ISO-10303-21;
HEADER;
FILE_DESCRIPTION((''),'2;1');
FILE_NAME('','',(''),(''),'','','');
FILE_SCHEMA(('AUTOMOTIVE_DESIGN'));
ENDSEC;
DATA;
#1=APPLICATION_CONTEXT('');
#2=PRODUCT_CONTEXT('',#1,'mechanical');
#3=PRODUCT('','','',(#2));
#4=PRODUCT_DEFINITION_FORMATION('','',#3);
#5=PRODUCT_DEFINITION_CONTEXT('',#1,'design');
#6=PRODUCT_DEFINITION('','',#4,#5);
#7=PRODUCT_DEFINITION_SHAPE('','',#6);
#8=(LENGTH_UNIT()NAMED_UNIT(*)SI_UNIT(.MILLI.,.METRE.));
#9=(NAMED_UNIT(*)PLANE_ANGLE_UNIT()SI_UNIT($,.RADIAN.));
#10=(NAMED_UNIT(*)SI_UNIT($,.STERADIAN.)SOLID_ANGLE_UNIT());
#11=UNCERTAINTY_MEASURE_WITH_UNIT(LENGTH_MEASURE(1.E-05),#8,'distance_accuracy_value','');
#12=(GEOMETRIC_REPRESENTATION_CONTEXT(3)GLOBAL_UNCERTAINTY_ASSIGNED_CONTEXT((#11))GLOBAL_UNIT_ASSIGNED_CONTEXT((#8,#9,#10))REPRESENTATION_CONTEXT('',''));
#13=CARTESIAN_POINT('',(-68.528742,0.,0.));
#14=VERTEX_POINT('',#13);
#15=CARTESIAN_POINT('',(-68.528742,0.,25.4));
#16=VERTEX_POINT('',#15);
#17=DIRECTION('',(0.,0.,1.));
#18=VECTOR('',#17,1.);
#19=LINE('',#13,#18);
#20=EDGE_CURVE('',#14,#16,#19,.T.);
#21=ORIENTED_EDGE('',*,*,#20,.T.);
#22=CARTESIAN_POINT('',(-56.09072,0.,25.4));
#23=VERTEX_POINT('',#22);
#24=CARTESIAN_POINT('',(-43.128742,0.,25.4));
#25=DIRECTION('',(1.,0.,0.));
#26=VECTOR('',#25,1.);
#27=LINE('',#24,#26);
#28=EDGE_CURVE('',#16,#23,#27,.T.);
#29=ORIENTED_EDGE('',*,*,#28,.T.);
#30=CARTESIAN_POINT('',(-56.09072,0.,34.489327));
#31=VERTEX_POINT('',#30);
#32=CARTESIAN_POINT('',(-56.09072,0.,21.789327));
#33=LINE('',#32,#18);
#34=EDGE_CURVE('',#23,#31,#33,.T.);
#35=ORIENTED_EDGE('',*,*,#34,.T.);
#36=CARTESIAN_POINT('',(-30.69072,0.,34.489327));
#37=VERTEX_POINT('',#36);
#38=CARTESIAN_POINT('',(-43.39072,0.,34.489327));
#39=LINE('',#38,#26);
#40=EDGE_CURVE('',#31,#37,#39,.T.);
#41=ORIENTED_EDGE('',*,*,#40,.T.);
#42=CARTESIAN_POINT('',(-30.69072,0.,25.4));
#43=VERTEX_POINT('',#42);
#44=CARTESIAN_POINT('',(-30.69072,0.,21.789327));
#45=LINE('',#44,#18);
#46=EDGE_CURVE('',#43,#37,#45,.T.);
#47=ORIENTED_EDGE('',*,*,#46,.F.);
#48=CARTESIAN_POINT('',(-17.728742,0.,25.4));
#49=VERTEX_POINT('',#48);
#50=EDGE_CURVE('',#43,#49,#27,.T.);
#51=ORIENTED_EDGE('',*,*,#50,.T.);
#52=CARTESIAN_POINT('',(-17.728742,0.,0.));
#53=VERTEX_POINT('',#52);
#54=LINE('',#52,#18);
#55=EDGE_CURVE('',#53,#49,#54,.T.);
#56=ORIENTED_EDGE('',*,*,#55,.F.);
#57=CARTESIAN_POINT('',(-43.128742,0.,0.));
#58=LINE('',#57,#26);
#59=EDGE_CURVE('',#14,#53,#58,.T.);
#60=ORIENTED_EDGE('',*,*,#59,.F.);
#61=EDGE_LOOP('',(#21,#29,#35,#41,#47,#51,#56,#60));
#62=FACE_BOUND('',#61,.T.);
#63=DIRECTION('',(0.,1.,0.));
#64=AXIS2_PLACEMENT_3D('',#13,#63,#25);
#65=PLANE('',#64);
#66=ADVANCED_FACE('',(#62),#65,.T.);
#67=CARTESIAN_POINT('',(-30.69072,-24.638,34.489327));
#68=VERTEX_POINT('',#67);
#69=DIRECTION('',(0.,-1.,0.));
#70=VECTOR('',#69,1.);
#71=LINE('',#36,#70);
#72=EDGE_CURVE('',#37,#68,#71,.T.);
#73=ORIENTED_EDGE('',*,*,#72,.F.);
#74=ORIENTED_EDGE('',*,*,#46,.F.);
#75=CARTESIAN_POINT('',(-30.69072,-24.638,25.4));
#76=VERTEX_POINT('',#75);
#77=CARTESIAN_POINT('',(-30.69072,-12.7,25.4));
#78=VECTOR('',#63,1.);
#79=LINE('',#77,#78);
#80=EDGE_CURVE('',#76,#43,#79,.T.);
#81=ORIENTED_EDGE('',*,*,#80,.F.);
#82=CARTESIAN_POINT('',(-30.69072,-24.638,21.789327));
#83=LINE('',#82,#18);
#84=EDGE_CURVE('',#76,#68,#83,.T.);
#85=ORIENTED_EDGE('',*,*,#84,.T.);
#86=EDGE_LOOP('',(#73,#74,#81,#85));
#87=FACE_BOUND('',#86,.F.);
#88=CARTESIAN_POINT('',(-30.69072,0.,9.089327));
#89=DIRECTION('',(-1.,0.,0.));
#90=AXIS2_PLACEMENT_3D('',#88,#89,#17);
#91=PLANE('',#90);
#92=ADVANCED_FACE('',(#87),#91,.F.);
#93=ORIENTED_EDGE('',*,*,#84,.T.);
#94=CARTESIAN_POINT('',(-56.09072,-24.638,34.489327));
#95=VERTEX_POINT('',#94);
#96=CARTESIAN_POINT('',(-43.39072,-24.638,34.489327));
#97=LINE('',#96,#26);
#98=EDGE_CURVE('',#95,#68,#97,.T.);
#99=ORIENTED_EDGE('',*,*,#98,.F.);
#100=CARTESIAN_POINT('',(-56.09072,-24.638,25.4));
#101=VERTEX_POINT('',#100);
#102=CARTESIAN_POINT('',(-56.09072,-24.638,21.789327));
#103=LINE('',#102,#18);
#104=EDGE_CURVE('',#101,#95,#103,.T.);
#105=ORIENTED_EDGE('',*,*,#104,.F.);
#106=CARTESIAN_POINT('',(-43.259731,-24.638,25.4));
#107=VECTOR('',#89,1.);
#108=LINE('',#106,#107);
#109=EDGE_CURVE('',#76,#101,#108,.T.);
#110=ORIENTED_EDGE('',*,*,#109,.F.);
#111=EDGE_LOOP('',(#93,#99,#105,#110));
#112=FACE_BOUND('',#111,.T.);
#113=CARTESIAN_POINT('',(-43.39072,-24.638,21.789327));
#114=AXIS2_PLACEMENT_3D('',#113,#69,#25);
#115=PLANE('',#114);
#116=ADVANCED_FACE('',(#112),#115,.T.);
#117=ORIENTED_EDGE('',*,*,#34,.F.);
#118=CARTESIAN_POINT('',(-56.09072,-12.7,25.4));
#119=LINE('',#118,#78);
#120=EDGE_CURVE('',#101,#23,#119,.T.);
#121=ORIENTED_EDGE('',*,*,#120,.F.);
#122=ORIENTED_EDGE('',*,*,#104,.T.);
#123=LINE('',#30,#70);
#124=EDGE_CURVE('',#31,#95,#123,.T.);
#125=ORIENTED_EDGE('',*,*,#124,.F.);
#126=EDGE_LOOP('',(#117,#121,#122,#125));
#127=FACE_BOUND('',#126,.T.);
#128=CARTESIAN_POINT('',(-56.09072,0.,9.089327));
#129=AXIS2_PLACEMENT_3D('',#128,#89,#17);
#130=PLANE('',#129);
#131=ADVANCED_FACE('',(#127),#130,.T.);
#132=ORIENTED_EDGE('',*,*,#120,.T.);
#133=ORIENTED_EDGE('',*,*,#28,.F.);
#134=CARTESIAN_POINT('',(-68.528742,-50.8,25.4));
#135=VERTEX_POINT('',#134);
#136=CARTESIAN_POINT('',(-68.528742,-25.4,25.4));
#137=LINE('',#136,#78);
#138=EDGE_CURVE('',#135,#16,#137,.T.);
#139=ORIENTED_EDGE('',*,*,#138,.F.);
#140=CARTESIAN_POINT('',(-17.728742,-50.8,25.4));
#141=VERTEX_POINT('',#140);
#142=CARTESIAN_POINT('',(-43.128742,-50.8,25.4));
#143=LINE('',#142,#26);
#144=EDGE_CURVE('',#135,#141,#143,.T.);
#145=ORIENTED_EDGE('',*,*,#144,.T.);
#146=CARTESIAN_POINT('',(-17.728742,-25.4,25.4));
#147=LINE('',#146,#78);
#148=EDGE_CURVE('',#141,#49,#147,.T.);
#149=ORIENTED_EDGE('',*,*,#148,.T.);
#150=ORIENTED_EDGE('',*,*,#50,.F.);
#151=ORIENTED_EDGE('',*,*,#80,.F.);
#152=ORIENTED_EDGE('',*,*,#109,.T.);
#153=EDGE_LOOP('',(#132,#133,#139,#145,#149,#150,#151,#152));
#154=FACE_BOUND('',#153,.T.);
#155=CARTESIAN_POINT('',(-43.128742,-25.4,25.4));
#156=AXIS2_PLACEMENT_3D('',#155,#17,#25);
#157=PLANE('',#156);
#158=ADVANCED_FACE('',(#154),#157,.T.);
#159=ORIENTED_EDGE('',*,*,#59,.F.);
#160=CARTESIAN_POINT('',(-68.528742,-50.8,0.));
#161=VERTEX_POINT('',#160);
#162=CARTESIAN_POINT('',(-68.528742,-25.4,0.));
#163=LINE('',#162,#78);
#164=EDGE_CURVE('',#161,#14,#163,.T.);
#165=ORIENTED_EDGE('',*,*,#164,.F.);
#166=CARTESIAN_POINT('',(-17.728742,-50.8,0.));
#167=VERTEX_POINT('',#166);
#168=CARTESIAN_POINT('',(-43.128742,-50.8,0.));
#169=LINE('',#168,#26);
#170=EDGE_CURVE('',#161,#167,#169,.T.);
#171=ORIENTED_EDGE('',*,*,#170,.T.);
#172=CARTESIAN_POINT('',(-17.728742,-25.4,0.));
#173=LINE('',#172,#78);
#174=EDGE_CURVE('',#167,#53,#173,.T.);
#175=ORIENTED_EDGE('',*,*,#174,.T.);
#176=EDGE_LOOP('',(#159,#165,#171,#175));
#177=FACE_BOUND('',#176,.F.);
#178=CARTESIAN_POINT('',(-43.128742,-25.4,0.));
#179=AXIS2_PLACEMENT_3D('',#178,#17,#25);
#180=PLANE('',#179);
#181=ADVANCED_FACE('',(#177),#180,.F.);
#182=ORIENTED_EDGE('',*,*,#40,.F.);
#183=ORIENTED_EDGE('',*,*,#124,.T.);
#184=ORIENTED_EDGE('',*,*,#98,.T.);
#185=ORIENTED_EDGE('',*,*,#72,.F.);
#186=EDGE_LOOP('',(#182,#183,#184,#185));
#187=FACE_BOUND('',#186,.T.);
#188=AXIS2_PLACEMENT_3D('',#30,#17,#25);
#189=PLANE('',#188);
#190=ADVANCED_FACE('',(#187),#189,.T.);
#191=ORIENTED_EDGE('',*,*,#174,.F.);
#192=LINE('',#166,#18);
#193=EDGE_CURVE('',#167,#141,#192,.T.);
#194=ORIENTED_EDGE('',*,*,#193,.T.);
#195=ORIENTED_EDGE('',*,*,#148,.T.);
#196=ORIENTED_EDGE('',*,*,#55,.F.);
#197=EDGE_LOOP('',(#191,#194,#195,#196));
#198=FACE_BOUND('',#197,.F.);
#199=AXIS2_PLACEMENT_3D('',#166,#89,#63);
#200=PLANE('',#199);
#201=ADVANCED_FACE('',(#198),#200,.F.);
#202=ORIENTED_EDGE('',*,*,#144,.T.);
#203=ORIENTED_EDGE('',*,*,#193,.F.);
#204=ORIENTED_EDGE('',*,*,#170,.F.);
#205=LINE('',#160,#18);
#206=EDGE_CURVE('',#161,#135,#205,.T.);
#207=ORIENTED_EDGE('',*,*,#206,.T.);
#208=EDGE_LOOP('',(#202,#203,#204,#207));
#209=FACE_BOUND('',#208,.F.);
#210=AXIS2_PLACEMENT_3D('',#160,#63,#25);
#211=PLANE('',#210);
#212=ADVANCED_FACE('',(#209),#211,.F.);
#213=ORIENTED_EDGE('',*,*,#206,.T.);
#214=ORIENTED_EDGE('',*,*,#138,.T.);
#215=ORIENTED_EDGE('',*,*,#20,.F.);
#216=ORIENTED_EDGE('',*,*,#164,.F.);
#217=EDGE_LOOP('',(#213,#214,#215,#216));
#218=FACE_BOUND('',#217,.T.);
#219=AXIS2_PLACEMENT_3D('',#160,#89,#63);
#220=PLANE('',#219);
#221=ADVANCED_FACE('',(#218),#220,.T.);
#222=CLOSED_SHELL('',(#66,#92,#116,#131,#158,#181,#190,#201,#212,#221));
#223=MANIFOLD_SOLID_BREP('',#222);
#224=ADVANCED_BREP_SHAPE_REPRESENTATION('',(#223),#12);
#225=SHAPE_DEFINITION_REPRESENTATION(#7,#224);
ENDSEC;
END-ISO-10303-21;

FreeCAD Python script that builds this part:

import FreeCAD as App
import Part
import Sketcher
Q = App.Units.Quantity

doc = App.newDocument("Part")
body = doc.addObject("PartDesign::Body", "Body")

sketch1 = body.newObject("Sketcher::SketchObject", "Sketch")
sketch1.AttachmentSupport = (doc.getObject("XZ_Plane"), [""])
sketch1.MapMode = "FlatFace"
sketch1.addGeometry(Part.LineSegment(App.Vector(-56, 34, 0), App.Vector(-56, 9, 0)), False)
sketch1.addGeometry(Part.LineSegment(App.Vector(-56, 9, 0), App.Vector(-31, 9, 0)), False)
sketch1.addGeometry(Part.LineSegment(App.Vector(-31, 9, 0), App.Vector(-31, 34, 0)), False)
sketch1.addGeometry(Part.LineSegment(App.Vector(-31, 34, 0), App.Vector(-56, 34, 0)), False)
sketch1.addConstraint(Sketcher.Constraint("Coincident", 0, 2, 1, 1))
sketch1.addConstraint(Sketcher.Constraint("Coincident", 1, 2, 2, 1))
sketch1.addConstraint(Sketcher.Constraint("Coincident", 2, 2, 3, 1))
sketch1.addConstraint(Sketcher.Constraint("Coincident", 3, 2, 0, 1))
sketch1.addConstraint(Sketcher.Constraint("Vertical", 0))
sketch1.addConstraint(Sketcher.Constraint("Horizontal", 1))
sketch1.addConstraint(Sketcher.Constraint("Vertical", 2))
sketch1.addConstraint(Sketcher.Constraint("Horizontal", 3))
sketch1.addConstraint(Sketcher.Constraint("Equal", 3, 0))
sketch1.addConstraint(Sketcher.Constraint("DistanceX", 1, 1, 1, 2, Q("1 in")))
sketch1.addConstraint(Sketcher.Constraint("DistanceX", 0, 2, -1, 1, 56.09072))
sketch1.addConstraint(Sketcher.Constraint("DistanceY", -1, 1, 0, 2, 9.089327))
pad1 = body.newObject("PartDesign::Pad", "Pad")
pad1.Profile = sketch1
pad1.Length = Q("0.97 in")

sketch2 = body.newObject("Sketcher::SketchObject", "Sketch001")
sketch2.AttachmentSupport = (doc.getObject("XY_Plane"), [""])
sketch2.MapMode = "FlatFace"
sketch2.addGeometry(Part.LineSegment(App.Vector(-69, 0, 0), App.Vector(-69, -51, 0)), False)
sketch2.addGeometry(Part.LineSegment(App.Vector(-69, -51, 0), App.Vector(-18, -51, 0)), False)
sketch2.addGeometry(Part.LineSegment(App.Vector(-18, -51, 0), App.Vector(-18, 0, 0)), False)
sketch2.addGeometry(Part.LineSegment(App.Vector(-18, 0, 0), App.Vector(-69, 0, 0)), False)
sketch2.addConstraint(Sketcher.Constraint("Coincident", 0, 2, 1, 1))
sketch2.addConstraint(Sketcher.Constraint("Coincident", 1, 2, 2, 1))
sketch2.addConstraint(Sketcher.Constraint("Coincident", 2, 2, 3, 1))
sketch2.addConstraint(Sketcher.Constraint("Coincident", 3, 2, 0, 1))
sketch2.addConstraint(Sketcher.Constraint("Vertical", 0))
sketch2.addConstraint(Sketcher.Constraint("Horizontal", 1))
sketch2.addConstraint(Sketcher.Constraint("Vertical", 2))
sketch2.addConstraint(Sketcher.Constraint("Horizontal", 3))
sketch2.addConstraint(Sketcher.Constraint("PointOnObject", 2, 2, -1))
sketch2.addConstraint(Sketcher.Constraint("Equal", 3, 0))
sketch2.addConstraint(Sketcher.Constraint("DistanceX", 1, 1, 1, 2, Q("2 in")))
sketch2.addConstraint(Sketcher.Constraint("DistanceX", 0, 2, -1, 1, 68.528742))
pad2 = body.newObject("PartDesign::Pad", "Pad001")
pad2.Profile = sketch2
pad2.Length = Q("1 in")

doc.recompute()
